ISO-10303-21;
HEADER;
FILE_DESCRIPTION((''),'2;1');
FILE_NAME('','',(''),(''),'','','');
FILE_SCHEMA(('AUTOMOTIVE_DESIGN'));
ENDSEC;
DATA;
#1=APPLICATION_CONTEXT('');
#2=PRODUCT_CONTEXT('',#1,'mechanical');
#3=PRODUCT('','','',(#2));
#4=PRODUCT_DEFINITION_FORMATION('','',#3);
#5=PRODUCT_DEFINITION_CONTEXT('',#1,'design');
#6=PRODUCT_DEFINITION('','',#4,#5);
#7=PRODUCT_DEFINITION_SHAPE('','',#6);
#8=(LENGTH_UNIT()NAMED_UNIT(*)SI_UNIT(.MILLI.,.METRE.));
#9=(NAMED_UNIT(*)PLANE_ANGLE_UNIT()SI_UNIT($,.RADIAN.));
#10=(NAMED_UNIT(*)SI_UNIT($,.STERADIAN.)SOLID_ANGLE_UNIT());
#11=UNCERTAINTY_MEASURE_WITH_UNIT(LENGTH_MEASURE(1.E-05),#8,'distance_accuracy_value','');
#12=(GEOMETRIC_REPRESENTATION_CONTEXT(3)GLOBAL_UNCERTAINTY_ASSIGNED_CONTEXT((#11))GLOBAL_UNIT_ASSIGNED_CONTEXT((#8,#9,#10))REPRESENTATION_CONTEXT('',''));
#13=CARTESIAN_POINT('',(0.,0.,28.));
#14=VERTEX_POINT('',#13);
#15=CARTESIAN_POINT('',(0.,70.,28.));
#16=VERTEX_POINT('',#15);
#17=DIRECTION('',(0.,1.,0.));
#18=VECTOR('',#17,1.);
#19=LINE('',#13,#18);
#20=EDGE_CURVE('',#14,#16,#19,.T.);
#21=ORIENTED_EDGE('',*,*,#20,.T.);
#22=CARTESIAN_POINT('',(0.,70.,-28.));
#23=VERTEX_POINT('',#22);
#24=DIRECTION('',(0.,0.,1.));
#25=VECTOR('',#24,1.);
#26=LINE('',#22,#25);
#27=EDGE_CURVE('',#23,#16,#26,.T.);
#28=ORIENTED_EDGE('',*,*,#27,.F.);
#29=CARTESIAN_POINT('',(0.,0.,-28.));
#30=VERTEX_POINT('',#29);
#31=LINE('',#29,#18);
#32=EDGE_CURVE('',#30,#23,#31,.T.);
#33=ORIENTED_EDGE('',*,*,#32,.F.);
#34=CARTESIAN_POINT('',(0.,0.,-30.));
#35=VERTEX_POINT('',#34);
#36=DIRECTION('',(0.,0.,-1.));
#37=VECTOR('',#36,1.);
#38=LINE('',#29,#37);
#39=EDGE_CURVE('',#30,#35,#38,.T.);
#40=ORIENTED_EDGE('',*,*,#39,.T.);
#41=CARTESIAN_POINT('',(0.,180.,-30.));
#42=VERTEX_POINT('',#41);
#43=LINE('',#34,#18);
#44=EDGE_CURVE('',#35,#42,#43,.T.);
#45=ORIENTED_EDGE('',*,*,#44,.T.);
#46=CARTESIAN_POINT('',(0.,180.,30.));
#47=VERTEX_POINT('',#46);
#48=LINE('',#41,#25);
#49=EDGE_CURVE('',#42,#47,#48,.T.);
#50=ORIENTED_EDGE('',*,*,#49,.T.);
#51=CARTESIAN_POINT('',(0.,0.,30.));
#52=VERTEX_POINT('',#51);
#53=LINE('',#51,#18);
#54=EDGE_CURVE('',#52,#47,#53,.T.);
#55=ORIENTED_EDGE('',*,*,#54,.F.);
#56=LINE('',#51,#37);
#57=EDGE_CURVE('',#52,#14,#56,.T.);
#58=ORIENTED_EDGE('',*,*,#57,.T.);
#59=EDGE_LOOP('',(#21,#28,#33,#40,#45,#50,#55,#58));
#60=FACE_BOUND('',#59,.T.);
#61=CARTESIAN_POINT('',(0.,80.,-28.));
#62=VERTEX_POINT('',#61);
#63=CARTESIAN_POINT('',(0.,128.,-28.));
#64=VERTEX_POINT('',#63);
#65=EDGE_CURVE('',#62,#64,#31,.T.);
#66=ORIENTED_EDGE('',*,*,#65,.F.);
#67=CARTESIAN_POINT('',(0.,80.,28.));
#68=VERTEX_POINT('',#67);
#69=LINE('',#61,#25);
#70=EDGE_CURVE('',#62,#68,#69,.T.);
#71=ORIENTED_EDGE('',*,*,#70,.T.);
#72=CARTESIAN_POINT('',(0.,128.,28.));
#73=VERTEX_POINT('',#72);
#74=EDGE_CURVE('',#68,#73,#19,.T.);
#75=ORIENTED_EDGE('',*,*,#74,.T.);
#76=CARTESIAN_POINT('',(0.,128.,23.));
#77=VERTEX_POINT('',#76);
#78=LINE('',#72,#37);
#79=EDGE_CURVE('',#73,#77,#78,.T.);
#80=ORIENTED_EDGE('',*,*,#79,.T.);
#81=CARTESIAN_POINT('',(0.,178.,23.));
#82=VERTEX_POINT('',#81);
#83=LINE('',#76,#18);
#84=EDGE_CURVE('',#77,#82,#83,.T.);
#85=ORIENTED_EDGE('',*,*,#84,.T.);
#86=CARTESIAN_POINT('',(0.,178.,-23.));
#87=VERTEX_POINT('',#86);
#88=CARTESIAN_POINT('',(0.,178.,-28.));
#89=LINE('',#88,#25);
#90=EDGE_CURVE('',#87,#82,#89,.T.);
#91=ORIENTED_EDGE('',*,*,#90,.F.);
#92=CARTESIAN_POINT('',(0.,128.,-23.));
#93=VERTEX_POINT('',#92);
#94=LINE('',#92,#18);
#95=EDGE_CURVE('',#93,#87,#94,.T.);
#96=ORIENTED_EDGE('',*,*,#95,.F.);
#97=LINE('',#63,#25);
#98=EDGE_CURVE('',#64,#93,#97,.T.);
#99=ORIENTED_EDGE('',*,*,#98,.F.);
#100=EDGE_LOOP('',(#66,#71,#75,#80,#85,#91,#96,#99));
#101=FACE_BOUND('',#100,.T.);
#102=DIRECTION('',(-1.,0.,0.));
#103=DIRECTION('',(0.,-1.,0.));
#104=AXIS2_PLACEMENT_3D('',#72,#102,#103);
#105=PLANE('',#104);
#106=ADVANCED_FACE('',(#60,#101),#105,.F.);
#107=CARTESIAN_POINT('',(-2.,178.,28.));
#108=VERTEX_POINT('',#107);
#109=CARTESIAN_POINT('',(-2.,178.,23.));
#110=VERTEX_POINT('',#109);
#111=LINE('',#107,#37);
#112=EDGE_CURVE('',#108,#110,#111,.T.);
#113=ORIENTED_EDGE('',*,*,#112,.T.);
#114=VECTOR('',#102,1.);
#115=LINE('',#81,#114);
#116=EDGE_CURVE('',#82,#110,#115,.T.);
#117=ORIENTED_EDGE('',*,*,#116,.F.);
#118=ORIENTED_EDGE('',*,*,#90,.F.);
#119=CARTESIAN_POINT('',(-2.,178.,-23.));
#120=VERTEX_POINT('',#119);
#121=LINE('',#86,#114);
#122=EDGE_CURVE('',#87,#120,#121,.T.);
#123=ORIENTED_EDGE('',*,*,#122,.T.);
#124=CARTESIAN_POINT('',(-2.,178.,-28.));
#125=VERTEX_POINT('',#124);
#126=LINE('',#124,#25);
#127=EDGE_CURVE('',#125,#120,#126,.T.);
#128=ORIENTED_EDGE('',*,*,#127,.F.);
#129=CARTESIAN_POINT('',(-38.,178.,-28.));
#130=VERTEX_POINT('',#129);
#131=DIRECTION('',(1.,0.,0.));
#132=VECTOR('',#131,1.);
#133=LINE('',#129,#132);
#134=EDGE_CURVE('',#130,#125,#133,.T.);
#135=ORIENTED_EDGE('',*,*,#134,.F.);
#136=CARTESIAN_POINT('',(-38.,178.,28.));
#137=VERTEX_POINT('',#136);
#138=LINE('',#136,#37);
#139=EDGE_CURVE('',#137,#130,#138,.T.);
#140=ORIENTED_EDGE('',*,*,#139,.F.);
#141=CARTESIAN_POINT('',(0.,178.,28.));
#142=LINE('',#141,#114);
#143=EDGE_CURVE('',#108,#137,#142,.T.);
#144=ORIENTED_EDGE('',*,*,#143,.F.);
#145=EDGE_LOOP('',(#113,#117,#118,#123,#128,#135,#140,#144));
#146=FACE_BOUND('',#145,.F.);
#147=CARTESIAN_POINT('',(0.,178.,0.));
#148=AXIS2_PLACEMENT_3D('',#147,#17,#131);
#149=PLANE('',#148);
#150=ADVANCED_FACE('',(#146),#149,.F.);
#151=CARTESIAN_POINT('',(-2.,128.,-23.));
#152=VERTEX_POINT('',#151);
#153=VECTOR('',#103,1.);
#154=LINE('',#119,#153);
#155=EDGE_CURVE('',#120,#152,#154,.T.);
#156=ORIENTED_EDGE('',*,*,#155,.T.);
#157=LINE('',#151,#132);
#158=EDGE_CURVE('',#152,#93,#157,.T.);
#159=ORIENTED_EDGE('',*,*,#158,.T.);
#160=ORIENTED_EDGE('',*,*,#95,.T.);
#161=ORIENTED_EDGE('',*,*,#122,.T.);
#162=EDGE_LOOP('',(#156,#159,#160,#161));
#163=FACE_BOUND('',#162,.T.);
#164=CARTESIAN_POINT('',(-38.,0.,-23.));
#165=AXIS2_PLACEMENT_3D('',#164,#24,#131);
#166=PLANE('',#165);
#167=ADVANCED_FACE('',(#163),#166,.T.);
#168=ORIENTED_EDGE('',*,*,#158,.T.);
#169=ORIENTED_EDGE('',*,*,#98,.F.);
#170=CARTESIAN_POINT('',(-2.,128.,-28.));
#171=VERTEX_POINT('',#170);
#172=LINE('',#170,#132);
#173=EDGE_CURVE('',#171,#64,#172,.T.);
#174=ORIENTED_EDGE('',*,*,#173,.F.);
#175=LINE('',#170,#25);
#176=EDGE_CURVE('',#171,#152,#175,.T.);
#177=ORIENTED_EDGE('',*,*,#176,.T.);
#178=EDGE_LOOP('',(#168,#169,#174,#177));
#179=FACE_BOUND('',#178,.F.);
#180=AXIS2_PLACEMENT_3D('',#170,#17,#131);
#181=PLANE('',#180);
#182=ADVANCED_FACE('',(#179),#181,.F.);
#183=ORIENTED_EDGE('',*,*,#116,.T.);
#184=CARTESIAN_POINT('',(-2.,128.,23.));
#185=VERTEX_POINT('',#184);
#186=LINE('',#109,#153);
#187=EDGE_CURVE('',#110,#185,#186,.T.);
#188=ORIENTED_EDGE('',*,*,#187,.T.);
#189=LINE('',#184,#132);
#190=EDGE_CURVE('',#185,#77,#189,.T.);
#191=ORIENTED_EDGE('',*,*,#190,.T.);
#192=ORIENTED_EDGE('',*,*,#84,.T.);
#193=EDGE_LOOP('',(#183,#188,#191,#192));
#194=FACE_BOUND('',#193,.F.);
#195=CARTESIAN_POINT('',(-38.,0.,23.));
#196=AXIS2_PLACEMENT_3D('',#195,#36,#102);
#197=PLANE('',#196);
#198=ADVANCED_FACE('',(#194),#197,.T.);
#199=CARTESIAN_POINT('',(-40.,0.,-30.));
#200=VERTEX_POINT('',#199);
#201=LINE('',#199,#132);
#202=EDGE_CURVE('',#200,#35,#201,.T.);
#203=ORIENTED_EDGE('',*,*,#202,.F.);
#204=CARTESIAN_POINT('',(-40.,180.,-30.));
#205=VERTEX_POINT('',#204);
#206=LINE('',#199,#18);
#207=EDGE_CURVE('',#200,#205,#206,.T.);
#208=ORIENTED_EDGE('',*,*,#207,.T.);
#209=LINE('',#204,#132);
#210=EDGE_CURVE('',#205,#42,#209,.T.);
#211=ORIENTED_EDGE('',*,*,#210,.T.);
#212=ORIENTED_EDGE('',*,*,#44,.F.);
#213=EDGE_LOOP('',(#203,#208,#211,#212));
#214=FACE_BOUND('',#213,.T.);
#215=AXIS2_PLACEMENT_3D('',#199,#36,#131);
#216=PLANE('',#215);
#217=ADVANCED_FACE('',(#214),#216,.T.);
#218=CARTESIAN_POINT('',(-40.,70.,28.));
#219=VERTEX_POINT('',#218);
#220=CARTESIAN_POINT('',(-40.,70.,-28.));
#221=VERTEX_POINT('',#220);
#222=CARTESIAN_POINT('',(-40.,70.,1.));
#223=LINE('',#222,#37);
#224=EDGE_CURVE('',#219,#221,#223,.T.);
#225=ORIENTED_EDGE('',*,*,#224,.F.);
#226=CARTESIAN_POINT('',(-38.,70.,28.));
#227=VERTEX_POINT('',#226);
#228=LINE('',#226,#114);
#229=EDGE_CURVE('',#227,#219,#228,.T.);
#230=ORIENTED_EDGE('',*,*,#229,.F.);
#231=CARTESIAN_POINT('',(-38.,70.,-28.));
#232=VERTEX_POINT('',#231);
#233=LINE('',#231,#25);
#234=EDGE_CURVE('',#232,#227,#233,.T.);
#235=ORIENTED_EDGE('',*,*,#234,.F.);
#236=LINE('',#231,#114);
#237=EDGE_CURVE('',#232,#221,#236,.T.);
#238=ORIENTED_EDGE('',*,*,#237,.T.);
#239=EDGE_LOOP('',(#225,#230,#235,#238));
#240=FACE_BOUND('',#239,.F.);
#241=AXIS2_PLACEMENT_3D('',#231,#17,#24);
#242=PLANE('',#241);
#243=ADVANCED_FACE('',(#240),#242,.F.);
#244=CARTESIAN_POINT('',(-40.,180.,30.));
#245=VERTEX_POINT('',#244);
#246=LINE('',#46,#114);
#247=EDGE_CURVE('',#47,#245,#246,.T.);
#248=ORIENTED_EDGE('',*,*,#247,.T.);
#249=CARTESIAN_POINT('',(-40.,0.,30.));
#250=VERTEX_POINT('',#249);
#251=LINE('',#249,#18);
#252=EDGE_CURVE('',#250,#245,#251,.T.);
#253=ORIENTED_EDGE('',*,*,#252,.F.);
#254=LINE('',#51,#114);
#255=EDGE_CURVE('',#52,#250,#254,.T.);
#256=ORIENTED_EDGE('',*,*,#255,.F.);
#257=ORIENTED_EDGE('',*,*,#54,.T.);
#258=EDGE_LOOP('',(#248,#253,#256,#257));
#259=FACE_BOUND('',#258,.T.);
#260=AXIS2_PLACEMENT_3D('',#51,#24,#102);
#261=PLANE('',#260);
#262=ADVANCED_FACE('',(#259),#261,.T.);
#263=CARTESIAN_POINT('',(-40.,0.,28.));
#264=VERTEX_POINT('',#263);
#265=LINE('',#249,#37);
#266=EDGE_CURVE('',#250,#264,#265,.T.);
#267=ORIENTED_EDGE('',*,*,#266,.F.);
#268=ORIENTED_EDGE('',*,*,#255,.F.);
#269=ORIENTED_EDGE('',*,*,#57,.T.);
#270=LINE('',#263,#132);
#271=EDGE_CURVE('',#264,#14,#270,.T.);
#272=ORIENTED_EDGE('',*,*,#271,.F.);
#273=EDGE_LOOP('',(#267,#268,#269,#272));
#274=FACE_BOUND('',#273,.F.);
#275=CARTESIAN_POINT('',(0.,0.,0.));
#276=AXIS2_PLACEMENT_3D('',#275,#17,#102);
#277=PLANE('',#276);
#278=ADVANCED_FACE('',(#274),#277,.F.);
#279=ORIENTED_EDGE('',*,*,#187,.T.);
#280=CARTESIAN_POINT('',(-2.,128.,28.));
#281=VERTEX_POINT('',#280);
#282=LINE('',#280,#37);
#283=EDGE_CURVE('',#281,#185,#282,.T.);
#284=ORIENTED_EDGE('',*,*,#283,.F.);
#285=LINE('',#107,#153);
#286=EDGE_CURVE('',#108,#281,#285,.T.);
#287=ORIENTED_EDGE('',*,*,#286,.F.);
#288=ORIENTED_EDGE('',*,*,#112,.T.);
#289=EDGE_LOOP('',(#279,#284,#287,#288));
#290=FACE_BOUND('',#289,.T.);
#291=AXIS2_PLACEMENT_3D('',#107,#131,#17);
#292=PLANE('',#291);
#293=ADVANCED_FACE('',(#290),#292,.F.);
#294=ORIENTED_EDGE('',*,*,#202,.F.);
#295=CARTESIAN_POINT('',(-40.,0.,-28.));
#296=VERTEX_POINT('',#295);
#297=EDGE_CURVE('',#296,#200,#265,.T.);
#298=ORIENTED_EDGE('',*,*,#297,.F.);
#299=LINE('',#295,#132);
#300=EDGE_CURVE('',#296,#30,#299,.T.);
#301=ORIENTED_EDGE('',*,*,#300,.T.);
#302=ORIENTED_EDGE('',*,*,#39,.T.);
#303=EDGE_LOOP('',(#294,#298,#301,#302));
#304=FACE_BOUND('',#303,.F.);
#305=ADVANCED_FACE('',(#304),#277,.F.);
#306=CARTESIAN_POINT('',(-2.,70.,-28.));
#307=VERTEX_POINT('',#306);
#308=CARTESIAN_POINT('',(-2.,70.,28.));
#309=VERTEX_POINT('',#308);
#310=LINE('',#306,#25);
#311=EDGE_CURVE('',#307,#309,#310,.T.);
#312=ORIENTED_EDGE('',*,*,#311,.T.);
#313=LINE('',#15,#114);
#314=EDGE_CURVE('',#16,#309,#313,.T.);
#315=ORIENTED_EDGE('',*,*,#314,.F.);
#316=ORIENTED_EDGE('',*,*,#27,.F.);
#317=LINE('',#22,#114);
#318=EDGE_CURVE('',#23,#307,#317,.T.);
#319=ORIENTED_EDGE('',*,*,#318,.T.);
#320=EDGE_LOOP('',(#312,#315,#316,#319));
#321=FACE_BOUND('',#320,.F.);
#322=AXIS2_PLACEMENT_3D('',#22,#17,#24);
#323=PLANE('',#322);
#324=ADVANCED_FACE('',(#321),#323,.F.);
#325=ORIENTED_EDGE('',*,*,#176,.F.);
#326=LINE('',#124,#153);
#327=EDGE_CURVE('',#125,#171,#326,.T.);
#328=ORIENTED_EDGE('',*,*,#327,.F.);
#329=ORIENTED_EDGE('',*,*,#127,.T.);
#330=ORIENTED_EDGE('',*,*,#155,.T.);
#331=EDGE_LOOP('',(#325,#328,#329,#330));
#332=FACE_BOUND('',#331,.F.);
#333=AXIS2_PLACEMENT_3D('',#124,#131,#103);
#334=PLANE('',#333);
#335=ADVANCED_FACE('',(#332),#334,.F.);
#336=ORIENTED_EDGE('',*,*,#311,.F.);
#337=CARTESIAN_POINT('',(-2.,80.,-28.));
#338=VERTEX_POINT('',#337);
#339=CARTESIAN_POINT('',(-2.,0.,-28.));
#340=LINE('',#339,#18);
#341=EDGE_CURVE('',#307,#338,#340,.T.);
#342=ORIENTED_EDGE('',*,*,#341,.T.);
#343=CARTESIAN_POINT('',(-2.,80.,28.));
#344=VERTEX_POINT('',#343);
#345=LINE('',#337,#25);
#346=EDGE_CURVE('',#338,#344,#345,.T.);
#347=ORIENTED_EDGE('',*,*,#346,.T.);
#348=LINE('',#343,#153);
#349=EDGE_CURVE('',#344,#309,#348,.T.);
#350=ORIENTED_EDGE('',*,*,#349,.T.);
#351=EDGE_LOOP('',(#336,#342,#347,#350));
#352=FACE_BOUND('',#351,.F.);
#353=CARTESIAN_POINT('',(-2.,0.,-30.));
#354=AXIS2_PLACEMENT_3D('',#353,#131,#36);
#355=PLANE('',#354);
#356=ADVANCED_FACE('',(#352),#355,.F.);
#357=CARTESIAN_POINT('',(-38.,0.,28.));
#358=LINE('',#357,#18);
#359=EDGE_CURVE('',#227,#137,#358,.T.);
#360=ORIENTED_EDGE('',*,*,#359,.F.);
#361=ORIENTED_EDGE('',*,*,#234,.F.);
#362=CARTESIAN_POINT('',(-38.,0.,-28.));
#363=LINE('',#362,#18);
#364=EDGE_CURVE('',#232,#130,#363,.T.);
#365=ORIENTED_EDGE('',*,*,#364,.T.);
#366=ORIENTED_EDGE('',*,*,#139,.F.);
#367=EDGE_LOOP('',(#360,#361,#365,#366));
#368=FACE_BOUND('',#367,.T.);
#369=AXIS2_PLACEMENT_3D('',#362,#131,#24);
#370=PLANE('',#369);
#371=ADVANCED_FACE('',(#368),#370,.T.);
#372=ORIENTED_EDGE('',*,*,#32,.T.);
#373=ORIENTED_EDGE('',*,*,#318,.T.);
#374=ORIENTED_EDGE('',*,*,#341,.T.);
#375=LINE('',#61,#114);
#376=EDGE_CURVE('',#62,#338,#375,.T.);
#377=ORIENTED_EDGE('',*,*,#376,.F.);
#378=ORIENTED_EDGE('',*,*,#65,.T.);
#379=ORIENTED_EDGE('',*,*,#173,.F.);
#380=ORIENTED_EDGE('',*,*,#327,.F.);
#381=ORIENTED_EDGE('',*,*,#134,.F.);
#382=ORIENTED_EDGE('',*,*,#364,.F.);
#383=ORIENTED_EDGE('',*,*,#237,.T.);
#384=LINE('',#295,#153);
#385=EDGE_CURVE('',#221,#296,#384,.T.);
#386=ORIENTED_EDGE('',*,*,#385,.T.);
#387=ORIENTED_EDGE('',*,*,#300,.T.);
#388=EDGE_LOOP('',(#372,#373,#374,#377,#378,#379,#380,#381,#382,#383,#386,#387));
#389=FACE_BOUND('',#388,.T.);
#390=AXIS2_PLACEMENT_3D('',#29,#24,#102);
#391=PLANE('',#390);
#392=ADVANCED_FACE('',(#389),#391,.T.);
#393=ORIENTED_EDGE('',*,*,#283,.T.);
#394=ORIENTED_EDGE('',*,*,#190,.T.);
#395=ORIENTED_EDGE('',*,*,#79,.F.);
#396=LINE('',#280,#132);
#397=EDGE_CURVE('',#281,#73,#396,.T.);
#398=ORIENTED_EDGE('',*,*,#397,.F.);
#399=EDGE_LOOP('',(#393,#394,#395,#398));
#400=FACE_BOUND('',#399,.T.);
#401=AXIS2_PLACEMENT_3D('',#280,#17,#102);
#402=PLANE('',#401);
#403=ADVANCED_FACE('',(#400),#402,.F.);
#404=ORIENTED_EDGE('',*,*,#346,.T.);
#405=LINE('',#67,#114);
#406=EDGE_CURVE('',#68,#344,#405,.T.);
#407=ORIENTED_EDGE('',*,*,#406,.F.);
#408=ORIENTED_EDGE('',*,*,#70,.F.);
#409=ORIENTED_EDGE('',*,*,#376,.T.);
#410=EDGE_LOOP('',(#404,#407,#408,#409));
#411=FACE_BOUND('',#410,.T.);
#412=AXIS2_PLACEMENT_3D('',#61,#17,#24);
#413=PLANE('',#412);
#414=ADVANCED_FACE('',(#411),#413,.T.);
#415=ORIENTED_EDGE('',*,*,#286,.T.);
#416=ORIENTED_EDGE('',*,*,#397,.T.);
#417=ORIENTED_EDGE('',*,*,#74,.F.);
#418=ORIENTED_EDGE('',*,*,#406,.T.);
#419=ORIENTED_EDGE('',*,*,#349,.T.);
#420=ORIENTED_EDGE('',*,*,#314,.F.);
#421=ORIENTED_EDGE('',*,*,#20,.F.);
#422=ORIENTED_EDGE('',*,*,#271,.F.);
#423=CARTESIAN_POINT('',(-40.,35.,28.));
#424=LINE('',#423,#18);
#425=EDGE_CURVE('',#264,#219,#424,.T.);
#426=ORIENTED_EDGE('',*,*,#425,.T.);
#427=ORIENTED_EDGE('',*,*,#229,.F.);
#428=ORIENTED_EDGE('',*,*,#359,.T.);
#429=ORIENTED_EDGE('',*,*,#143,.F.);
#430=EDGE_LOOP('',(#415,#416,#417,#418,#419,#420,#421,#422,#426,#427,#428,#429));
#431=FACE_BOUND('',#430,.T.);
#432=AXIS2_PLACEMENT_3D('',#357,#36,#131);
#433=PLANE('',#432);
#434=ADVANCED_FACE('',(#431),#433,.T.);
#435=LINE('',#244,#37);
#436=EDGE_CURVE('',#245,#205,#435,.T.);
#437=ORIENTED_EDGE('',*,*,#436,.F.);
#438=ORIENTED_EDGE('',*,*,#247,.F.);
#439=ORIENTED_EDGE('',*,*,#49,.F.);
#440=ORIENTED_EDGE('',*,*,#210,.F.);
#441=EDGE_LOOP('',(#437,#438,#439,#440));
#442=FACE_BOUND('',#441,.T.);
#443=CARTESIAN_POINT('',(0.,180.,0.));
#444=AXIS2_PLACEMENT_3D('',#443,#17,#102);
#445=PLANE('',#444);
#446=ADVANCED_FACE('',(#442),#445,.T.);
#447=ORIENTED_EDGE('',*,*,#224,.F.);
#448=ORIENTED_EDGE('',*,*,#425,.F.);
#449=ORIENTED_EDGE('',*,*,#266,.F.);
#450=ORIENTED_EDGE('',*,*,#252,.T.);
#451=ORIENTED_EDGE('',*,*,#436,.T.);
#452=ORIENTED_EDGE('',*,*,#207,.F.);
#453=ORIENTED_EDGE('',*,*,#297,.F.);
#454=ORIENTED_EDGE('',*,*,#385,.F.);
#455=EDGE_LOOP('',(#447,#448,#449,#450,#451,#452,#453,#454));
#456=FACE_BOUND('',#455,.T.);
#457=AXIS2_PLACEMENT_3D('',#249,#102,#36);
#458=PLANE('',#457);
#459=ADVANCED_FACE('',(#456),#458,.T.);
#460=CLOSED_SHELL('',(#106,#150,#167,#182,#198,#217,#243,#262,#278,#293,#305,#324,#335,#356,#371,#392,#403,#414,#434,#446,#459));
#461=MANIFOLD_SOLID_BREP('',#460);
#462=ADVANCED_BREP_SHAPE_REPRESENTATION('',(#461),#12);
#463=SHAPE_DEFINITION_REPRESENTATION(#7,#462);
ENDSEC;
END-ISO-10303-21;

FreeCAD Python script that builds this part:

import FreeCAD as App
import Part
import Sketcher

V = App.Vector


def add_polygon(sketch, points):
    """Adds a closed chain of lines whose ends are joined by coincident constraints."""
    first, n = sketch.GeometryCount, len(points)
    for a, b in zip(points, points[1:] + points[:1]):
        sketch.addGeometry(Part.LineSegment(App.Vector(*a, 0), App.Vector(*b, 0)), False)
    for i in range(n):
        sketch.addConstraint(Sketcher.Constraint("Coincident", first + i, 2, first + (i + 1) % n, 1))

doc = App.newDocument("Part")
body = doc.addObject("PartDesign::Body", "Body")

# Sketch on XZ plane
sketch1 = body.newObject("Sketcher::SketchObject", "Sketch")
sketch1.AttachmentSupport = (doc.getObject("XZ_Plane"), [""])
sketch1.MapMode = "FlatFace"
add_polygon(sketch1, [(-38, -28), (0, -28), (0, -30), (-40, -30), (-40, 30), (0, 30), (0, 28), (-38, 28)])  # lines 0-7
sketch1.addConstraint(Sketcher.Constraint("Horizontal", 0))
sketch1.addConstraint(Sketcher.Constraint("Vertical", 1))
sketch1.addConstraint(Sketcher.Constraint("Horizontal", 2))
sketch1.addConstraint(Sketcher.Constraint("Vertical", 3))
sketch1.addConstraint(Sketcher.Constraint("Horizontal", 4))
sketch1.addConstraint(Sketcher.Constraint("Vertical", 5))
sketch1.addConstraint(Sketcher.Constraint("Horizontal", 6))
sketch1.addConstraint(Sketcher.Constraint("Vertical", 7))
sketch1.addConstraint(Sketcher.Constraint("Symmetric", 1, 2, 4, 2, -1, 1))
sketch1.addConstraint(Sketcher.Constraint("Symmetric", 0, 2, 5, 2, -1))
sketch1.addConstraint(Sketcher.Constraint("DistanceX", 0, 1, 0, 2, 38.0))
sketch1.addConstraint(Sketcher.Constraint("DistanceX", 2, 2, 2, 1, 40.0))
sketch1.addConstraint(Sketcher.Constraint("DistanceY", 1, 2, 1, 1, 2.0))
sketch1.addConstraint(Sketcher.Constraint("DistanceY", 3, 1, 3, 2, 60.0))
pad1 = body.newObject("PartDesign::Pad", "Pad")
pad1.Profile = sketch1
pad1.Length = 180
pad1.Reversed = True

# Sketch on XZ plane
sketch2 = body.newObject("Sketcher::SketchObject", "Sketch001")
sketch2.AttachmentSupport = (doc.getObject("XZ_Plane"), [""])
sketch2.MapMode = "FlatFace"
sketch2.AttachmentOffset = App.Placement(V(0, 0, -180), App.Rotation())
add_polygon(sketch2, [(0, -28), (-38, -28), (-38, 28), (0, 28)])  # lines 0-3
sketch2.addConstraint(Sketcher.Constraint("Horizontal", 0))
sketch2.addConstraint(Sketcher.Constraint("Vertical", 1))
sketch2.addConstraint(Sketcher.Constraint("Horizontal", 2))
sketch2.addConstraint(Sketcher.Constraint("Vertical", 3))
sketch2.addConstraint(Sketcher.Constraint("Symmetric", 2, 2, 3, 2, -1, 1))
sketch2.addConstraint(Sketcher.Constraint("DistanceX", 0, 2, 0, 1, 38.0))
sketch2.addConstraint(Sketcher.Constraint("DistanceY", 1, 1, 1, 2, 56.0))
pad2 = body.newObject("PartDesign::Pad", "Pad001")
pad2.Profile = sketch2
pad2.Length = 2

# Sketch on XY plane
sketch3 = body.newObject("Sketcher::SketchObject", "Sketch002")
sketch3.AttachmentSupport = (doc.getObject("XY_Plane"), [""])
sketch3.MapMode = "FlatFace"
sketch3.AttachmentOffset = App.Placement(V(0, 0, -28), App.Rotation())
add_polygon(sketch3, [(0, 128), (0, 178), (-2, 178), (-2, 128)])  # lines 0-3
sketch3.addConstraint(Sketcher.Constraint("Vertical", 0))
sketch3.addConstraint(Sketcher.Constraint("Horizontal", 1))
sketch3.addConstraint(Sketcher.Constraint("Vertical", 2))
sketch3.addConstraint(Sketcher.Constraint("Horizontal", 3))
sketch3.addConstraint(Sketcher.Constraint("PointOnObject", 0, 2, -2))
sketch3.addConstraint(Sketcher.Constraint("DistanceX", 1, 2, 1, 1, 2.0))
sketch3.addConstraint(Sketcher.Constraint("DistanceY", 0, 1, 0, 2, 50.0))
sketch3.addConstraint(Sketcher.Constraint("DistanceY", -1, 1, 0, 2, 178.0))
pad3 = body.newObject("PartDesign::Pad", "Pad002")
pad3.Profile = sketch3
pad3.Length = 5
doc.recompute()

mirrored = body.newObject("PartDesign::Mirrored", "Mirrored")
mirrored.Originals = [pad3]
mirrored.MirrorPlane = (doc.getObject("XY_Plane"), [""])
body.Tip = mirrored

# Sketch on YZ plane
sketch4 = body.newObject("Sketcher::SketchObject", "Sketch003")
sketch4.AttachmentSupport = (doc.getObject("YZ_Plane"), [""])
sketch4.MapMode = "FlatFace"
sketch4.AttachmentOffset = App.Placement(V(0, 0, -38), App.Rotation())
add_polygon(sketch4, [(70, 28), (0, 28), (0, -28), (70, -28)])  # lines 0-3
sketch4.addConstraint(Sketcher.Constraint("Horizontal", 0))
sketch4.addConstraint(Sketcher.Constraint("Vertical", 1))
sketch4.addConstraint(Sketcher.Constraint("Horizontal", 2))
sketch4.addConstraint(Sketcher.Constraint("Vertical", 3))
sketch4.addConstraint(Sketcher.Constraint("Symmetric", 0, 2, 1, 2, -1, 1))
sketch4.addConstraint(Sketcher.Constraint("DistanceX", 0, 2, 0, 1, 70.0))
sketch4.addConstraint(Sketcher.Constraint("DistanceY", 1, 2, 1, 1, 56.0))
pocket1 = body.newObject("PartDesign::Pocket", "Pocket")
pocket1.Profile = sketch4
pocket1.Length = 5

# Sketch on YZ plane
sketch5 = body.newObject("Sketcher::SketchObject", "Sketch004")
sketch5.AttachmentSupport = (doc.getObject("YZ_Plane"), [""])
sketch5.MapMode = "FlatFace"
add_polygon(sketch5, [(70, 28), (70, -28), (80, -28), (80, 28)])  # lines 0-3
sketch5.addConstraint(Sketcher.Constraint("Vertical", 0))
sketch5.addConstraint(Sketcher.Constraint("Horizontal", 1))
sketch5.addConstraint(Sketcher.Constraint("Vertical", 2))
sketch5.addConstraint(Sketcher.Constraint("Horizontal", 3))
sketch5.addConstraint(Sketcher.Constraint("DistanceX", 1, 1, 1, 2, 10.0))
sketch5.addConstraint(Sketcher.Constraint("DistanceY", 0, 2, 0, 1, 56.0))
sketch5.addConstraint(Sketcher.Constraint("DistanceX", -1, 1, 0, 2, 70.0))
sketch5.addConstraint(Sketcher.Constraint("DistanceY", 0, 2, -1, 1, 28.0))
pad4 = body.newObject("PartDesign::Pad", "Pad003")
pad4.Profile = sketch5
pad4.Length = 2
pad4.Reversed = True

doc.recompute()
